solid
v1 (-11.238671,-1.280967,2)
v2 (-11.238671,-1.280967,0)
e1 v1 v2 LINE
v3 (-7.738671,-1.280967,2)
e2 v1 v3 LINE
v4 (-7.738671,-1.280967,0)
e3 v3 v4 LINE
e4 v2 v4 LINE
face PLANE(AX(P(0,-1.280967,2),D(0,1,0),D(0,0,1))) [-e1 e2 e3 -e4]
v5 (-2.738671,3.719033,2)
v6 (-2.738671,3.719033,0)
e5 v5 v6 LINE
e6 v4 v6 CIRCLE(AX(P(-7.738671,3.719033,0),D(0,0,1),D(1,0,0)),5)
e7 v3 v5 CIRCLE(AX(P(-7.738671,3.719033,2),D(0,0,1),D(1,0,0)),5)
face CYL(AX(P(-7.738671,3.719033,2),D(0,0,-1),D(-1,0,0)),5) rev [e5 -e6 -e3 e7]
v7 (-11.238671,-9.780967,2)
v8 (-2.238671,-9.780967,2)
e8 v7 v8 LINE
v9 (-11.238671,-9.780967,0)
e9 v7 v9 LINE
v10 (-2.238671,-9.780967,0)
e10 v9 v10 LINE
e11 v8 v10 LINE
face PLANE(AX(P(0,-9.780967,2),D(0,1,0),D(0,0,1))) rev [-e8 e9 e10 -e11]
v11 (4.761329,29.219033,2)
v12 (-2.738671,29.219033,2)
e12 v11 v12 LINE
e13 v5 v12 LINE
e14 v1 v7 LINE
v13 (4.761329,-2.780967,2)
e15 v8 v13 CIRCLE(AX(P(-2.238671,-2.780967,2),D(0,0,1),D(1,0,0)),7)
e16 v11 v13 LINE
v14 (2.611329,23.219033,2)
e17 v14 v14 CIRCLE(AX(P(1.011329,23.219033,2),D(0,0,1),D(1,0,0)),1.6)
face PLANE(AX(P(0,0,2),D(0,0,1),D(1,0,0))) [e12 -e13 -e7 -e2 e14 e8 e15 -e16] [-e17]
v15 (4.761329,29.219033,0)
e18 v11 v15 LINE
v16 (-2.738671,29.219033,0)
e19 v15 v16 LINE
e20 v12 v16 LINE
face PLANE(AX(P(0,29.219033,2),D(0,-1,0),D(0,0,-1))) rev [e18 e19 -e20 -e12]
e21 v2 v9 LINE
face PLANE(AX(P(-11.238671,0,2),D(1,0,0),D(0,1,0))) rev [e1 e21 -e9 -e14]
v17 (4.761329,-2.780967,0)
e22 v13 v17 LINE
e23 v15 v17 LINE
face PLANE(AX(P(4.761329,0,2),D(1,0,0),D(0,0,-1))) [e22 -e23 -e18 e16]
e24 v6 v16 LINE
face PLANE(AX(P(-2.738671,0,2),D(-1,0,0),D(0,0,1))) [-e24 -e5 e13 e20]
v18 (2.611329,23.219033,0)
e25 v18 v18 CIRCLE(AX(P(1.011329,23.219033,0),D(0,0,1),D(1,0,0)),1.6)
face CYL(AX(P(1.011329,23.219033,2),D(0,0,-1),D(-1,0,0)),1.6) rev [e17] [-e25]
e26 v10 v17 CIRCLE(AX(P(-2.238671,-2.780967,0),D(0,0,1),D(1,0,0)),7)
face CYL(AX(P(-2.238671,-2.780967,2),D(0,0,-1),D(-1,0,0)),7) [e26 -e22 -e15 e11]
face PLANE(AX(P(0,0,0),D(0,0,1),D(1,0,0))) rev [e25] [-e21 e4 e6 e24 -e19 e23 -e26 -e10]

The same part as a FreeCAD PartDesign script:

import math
import FreeCAD as App
import Part
import Sketcher

V = App.Vector
Q = App.Units.Quantity

doc = App.newDocument("Part")
body = doc.addObject("PartDesign::Body", "Body")

# Sketch on XY plane
sketch1 = body.newObject("Sketcher::SketchObject", "Sketch")
sketch1.AttachmentSupport = (doc.getObject("XY_Plane"), [""])
sketch1.MapMode = "FlatFace"
sketch1.addGeometry(Part.LineSegment(V(-7.738671, -1.280967, 0), V(-11.238671, -1.280967, 0)), False)
sketch1.addGeometry(Part.LineSegment(V(-11.238671, -1.280967, 0), V(-11.238671, -9.780967, 0)), False)
sketch1.addGeometry(Part.LineSegment(V(-11.238671, -9.780967, 0), V(-2.238671, -9.780967, 0)), False)
sketch1.addGeometry(Part.ArcOfCircle(Part.Circle(V(-2.238671, -2.780967, 0), V(0, 0, 1), 7), math.radians(-90), math.radians(0)), False)
sketch1.addGeometry(Part.LineSegment(V(4.761329, -2.780967, 0), V(4.761329, 29.219033, 0)), False)
sketch1.addGeometry(Part.LineSegment(V(4.761329, 29.219033, 0), V(-2.738671, 29.219033, 0)), False)
sketch1.addGeometry(Part.LineSegment(V(-2.738671, 29.219033, 0), V(-2.738671, 3.719033, 0)), False)
sketch1.addGeometry(Part.ArcOfCircle(Part.Circle(V(-7.738671, 3.719033, 0), V(0, 0, 1), 5), math.radians(-90), math.radians(0)), False)
sketch1.addGeometry(Part.Circle(V(1.011329, 23.219033, 0), V(0, 0, 1), 1.6), False)
sketch1.addConstraint(Sketcher.Constraint("Coincident", 0, 2, 1, 1))
sketch1.addConstraint(Sketcher.Constraint("Coincident", 1, 2, 2, 1))
sketch1.addConstraint(Sketcher.Constraint("Tangent", 2, 2, 3, 1))
sketch1.addConstraint(Sketcher.Constraint("Tangent", 3, 2, 4, 1))
sketch1.addConstraint(Sketcher.Constraint("Coincident", 4, 2, 5, 1))
sketch1.addConstraint(Sketcher.Constraint("Coincident", 5, 2, 6, 1))
sketch1.addConstraint(Sketcher.Constraint("Tangent", 6, 2, 7, 2))
sketch1.addConstraint(Sketcher.Constraint("Tangent", 7, 1, 0, 1))
sketch1.addConstraint(Sketcher.Constraint("Horizontal", 0))
sketch1.addConstraint(Sketcher.Constraint("Vertical", 1))
sketch1.addConstraint(Sketcher.Constraint("Horizontal", 2))
sketch1.addConstraint(Sketcher.Constraint("Vertical", 4))
sketch1.addConstraint(Sketcher.Constraint("Horizontal", 5))
sketch1.addConstraint(Sketcher.Constraint("Vertical", 6))
sketch1.addConstraint(Sketcher.Constraint("Radius", 3, Q("7 mm")))
sketch1.addConstraint(Sketcher.Constraint("Radius", 7, Q("5 mm")))
sketch1.addConstraint(Sketcher.Constraint("Diameter", 8, Q("3.2 mm")))
sketch1.addConstraint(Sketcher.Constraint("DistanceX", 2, 1, 2, 2, Q("9 mm")))
sketch1.addConstraint(Sketcher.Constraint("DistanceY", 4, 1, 4, 2, Q("32 mm")))
sketch1.addConstraint(Sketcher.Constraint("DistanceX", 0, 2, 0, 1, Q("3.5 mm")))
sketch1.addConstraint(Sketcher.Constraint("DistanceY", 1, 2, 1, 1, Q("8.5 mm")))
sketch1.addConstraint(Sketcher.Constraint("DistanceY", 3, 3, 8, 3, Q("26 mm")))
sketch1.addConstraint(Sketcher.Constraint("DistanceX", 7, 3, 8, 3, Q("8.75 mm")))
sketch1.addConstraint(Sketcher.Constraint("DistanceX", 3, 3, -1, 1, Q("2.238671 mm")))
sketch1.addConstraint(Sketcher.Constraint("DistanceY", 3, 3, -1, 1, Q("2.780967 mm")))
pad1 = body.newObject("PartDesign::Pad", "Pad")
pad1.Profile = sketch1
pad1.Length = 2

doc.recompute()
